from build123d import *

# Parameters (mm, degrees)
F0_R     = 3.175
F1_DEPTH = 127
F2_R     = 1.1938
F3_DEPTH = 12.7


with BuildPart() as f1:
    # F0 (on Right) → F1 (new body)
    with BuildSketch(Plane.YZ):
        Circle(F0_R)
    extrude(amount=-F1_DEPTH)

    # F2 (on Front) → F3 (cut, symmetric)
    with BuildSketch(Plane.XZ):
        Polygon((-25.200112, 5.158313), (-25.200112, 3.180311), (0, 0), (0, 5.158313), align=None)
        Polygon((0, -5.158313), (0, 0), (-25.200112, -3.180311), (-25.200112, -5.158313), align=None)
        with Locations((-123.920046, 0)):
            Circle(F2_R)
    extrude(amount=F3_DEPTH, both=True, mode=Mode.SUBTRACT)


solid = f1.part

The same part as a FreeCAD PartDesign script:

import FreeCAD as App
import Part
import Sketcher
from FreeCAD import Vector
Q = App.Units.Quantity


def add_polygon(sketch, points):
    """Adds a closed chain of lines whose ends are joined by coincident constraints."""
    first, n = sketch.GeometryCount, len(points)
    for a, b in zip(points, points[1:] + points[:1]):
        sketch.addGeometry(Part.LineSegment(App.Vector(*a, 0), App.Vector(*b, 0)), False)
    for i in range(n):
        sketch.addConstraint(Sketcher.Constraint("Coincident", first + i, 2, first + (i + 1) % n, 1))

doc = App.newDocument("Part")
body = doc.addObject("PartDesign::Body", "Body")

# Sketch on YZ plane
sketch1 = body.newObject("Sketcher::SketchObject", "Sketch")
sketch1.AttachmentSupport = (doc.getObject("YZ_Plane"), [""])
sketch1.MapMode = "FlatFace"
sketch1.addGeometry(Part.Circle(Vector(0, 0, 0), Vector(0, 0, 1), 3.175), False)
sketch1.addConstraint([
    Sketcher.Constraint("Coincident", 0, 3, -1, 1),
    Sketcher.Constraint("Diameter", 0, Q("0.25 in")),
])
pad1 = body.newObject("PartDesign::Pad", "Pad")
pad1.Profile = sketch1
pad1.Length = Q("5 in")
pad1.Reversed = True

# Sketch on XZ plane
sketch2 = body.newObject("Sketcher::SketchObject", "Sketch001")
sketch2.AttachmentSupport = (doc.getObject("XZ_Plane"), [""])
sketch2.MapMode = "FlatFace"
add_polygon(sketch2, [(-25.200112, 5.158313), (-25.200112, 3.180311), (0, 0), (0, 5.158313)])  # lines 0-3
add_polygon(sketch2, [(0, -5.158313), (0, 0), (-25.200112, -3.180311), (-25.200112, -5.158313)])  # lines 4-7
sketch2.addGeometry(Part.Circle(Vector(-123.920046, 0, 0), Vector(0, 0, 1), 1.1938), False)  # 8
sketch2.addConstraint([
    Sketcher.Constraint("Vertical", 0),
    Sketcher.Constraint("Vertical", 2),
    Sketcher.Constraint("Horizontal", 3),
    Sketcher.Constraint("Vertical", 4),
    Sketcher.Constraint("Vertical", 6),
    Sketcher.Constraint("Horizontal", 7),
    Sketcher.Constraint("Coincident", 1, 2, -1, 1),
    Sketcher.Constraint("Coincident", 4, 2, -1, 1),
    Sketcher.Constraint("Symmetric", 0, 2, 5, 2, -1),
    Sketcher.Constraint("PointOnObject", 8, 3, -1),
    Sketcher.Constraint("Equal", 2, 4),
    Sketcher.Constraint("Distance", 1, Q("1 in")),
    Sketcher.Constraint("Diameter", 8, Q("0.094 in")),
    Sketcher.Constraint("DistanceY", 0, 2, 0, 1, Q("1.978002 mm")),
    Sketcher.Constraint("DistanceX", 3, 2, 3, 1, Q("25.200112 mm")),
    Sketcher.Constraint("DistanceX", 8, 3, -1, 1, Q("123.920046 mm")),
])
pocket1 = body.newObject("PartDesign::Pocket", "Pocket")
pocket1.Profile = sketch2
pocket1.Length = Q("1 in")
pocket1.Midplane = True

doc.recompute()
